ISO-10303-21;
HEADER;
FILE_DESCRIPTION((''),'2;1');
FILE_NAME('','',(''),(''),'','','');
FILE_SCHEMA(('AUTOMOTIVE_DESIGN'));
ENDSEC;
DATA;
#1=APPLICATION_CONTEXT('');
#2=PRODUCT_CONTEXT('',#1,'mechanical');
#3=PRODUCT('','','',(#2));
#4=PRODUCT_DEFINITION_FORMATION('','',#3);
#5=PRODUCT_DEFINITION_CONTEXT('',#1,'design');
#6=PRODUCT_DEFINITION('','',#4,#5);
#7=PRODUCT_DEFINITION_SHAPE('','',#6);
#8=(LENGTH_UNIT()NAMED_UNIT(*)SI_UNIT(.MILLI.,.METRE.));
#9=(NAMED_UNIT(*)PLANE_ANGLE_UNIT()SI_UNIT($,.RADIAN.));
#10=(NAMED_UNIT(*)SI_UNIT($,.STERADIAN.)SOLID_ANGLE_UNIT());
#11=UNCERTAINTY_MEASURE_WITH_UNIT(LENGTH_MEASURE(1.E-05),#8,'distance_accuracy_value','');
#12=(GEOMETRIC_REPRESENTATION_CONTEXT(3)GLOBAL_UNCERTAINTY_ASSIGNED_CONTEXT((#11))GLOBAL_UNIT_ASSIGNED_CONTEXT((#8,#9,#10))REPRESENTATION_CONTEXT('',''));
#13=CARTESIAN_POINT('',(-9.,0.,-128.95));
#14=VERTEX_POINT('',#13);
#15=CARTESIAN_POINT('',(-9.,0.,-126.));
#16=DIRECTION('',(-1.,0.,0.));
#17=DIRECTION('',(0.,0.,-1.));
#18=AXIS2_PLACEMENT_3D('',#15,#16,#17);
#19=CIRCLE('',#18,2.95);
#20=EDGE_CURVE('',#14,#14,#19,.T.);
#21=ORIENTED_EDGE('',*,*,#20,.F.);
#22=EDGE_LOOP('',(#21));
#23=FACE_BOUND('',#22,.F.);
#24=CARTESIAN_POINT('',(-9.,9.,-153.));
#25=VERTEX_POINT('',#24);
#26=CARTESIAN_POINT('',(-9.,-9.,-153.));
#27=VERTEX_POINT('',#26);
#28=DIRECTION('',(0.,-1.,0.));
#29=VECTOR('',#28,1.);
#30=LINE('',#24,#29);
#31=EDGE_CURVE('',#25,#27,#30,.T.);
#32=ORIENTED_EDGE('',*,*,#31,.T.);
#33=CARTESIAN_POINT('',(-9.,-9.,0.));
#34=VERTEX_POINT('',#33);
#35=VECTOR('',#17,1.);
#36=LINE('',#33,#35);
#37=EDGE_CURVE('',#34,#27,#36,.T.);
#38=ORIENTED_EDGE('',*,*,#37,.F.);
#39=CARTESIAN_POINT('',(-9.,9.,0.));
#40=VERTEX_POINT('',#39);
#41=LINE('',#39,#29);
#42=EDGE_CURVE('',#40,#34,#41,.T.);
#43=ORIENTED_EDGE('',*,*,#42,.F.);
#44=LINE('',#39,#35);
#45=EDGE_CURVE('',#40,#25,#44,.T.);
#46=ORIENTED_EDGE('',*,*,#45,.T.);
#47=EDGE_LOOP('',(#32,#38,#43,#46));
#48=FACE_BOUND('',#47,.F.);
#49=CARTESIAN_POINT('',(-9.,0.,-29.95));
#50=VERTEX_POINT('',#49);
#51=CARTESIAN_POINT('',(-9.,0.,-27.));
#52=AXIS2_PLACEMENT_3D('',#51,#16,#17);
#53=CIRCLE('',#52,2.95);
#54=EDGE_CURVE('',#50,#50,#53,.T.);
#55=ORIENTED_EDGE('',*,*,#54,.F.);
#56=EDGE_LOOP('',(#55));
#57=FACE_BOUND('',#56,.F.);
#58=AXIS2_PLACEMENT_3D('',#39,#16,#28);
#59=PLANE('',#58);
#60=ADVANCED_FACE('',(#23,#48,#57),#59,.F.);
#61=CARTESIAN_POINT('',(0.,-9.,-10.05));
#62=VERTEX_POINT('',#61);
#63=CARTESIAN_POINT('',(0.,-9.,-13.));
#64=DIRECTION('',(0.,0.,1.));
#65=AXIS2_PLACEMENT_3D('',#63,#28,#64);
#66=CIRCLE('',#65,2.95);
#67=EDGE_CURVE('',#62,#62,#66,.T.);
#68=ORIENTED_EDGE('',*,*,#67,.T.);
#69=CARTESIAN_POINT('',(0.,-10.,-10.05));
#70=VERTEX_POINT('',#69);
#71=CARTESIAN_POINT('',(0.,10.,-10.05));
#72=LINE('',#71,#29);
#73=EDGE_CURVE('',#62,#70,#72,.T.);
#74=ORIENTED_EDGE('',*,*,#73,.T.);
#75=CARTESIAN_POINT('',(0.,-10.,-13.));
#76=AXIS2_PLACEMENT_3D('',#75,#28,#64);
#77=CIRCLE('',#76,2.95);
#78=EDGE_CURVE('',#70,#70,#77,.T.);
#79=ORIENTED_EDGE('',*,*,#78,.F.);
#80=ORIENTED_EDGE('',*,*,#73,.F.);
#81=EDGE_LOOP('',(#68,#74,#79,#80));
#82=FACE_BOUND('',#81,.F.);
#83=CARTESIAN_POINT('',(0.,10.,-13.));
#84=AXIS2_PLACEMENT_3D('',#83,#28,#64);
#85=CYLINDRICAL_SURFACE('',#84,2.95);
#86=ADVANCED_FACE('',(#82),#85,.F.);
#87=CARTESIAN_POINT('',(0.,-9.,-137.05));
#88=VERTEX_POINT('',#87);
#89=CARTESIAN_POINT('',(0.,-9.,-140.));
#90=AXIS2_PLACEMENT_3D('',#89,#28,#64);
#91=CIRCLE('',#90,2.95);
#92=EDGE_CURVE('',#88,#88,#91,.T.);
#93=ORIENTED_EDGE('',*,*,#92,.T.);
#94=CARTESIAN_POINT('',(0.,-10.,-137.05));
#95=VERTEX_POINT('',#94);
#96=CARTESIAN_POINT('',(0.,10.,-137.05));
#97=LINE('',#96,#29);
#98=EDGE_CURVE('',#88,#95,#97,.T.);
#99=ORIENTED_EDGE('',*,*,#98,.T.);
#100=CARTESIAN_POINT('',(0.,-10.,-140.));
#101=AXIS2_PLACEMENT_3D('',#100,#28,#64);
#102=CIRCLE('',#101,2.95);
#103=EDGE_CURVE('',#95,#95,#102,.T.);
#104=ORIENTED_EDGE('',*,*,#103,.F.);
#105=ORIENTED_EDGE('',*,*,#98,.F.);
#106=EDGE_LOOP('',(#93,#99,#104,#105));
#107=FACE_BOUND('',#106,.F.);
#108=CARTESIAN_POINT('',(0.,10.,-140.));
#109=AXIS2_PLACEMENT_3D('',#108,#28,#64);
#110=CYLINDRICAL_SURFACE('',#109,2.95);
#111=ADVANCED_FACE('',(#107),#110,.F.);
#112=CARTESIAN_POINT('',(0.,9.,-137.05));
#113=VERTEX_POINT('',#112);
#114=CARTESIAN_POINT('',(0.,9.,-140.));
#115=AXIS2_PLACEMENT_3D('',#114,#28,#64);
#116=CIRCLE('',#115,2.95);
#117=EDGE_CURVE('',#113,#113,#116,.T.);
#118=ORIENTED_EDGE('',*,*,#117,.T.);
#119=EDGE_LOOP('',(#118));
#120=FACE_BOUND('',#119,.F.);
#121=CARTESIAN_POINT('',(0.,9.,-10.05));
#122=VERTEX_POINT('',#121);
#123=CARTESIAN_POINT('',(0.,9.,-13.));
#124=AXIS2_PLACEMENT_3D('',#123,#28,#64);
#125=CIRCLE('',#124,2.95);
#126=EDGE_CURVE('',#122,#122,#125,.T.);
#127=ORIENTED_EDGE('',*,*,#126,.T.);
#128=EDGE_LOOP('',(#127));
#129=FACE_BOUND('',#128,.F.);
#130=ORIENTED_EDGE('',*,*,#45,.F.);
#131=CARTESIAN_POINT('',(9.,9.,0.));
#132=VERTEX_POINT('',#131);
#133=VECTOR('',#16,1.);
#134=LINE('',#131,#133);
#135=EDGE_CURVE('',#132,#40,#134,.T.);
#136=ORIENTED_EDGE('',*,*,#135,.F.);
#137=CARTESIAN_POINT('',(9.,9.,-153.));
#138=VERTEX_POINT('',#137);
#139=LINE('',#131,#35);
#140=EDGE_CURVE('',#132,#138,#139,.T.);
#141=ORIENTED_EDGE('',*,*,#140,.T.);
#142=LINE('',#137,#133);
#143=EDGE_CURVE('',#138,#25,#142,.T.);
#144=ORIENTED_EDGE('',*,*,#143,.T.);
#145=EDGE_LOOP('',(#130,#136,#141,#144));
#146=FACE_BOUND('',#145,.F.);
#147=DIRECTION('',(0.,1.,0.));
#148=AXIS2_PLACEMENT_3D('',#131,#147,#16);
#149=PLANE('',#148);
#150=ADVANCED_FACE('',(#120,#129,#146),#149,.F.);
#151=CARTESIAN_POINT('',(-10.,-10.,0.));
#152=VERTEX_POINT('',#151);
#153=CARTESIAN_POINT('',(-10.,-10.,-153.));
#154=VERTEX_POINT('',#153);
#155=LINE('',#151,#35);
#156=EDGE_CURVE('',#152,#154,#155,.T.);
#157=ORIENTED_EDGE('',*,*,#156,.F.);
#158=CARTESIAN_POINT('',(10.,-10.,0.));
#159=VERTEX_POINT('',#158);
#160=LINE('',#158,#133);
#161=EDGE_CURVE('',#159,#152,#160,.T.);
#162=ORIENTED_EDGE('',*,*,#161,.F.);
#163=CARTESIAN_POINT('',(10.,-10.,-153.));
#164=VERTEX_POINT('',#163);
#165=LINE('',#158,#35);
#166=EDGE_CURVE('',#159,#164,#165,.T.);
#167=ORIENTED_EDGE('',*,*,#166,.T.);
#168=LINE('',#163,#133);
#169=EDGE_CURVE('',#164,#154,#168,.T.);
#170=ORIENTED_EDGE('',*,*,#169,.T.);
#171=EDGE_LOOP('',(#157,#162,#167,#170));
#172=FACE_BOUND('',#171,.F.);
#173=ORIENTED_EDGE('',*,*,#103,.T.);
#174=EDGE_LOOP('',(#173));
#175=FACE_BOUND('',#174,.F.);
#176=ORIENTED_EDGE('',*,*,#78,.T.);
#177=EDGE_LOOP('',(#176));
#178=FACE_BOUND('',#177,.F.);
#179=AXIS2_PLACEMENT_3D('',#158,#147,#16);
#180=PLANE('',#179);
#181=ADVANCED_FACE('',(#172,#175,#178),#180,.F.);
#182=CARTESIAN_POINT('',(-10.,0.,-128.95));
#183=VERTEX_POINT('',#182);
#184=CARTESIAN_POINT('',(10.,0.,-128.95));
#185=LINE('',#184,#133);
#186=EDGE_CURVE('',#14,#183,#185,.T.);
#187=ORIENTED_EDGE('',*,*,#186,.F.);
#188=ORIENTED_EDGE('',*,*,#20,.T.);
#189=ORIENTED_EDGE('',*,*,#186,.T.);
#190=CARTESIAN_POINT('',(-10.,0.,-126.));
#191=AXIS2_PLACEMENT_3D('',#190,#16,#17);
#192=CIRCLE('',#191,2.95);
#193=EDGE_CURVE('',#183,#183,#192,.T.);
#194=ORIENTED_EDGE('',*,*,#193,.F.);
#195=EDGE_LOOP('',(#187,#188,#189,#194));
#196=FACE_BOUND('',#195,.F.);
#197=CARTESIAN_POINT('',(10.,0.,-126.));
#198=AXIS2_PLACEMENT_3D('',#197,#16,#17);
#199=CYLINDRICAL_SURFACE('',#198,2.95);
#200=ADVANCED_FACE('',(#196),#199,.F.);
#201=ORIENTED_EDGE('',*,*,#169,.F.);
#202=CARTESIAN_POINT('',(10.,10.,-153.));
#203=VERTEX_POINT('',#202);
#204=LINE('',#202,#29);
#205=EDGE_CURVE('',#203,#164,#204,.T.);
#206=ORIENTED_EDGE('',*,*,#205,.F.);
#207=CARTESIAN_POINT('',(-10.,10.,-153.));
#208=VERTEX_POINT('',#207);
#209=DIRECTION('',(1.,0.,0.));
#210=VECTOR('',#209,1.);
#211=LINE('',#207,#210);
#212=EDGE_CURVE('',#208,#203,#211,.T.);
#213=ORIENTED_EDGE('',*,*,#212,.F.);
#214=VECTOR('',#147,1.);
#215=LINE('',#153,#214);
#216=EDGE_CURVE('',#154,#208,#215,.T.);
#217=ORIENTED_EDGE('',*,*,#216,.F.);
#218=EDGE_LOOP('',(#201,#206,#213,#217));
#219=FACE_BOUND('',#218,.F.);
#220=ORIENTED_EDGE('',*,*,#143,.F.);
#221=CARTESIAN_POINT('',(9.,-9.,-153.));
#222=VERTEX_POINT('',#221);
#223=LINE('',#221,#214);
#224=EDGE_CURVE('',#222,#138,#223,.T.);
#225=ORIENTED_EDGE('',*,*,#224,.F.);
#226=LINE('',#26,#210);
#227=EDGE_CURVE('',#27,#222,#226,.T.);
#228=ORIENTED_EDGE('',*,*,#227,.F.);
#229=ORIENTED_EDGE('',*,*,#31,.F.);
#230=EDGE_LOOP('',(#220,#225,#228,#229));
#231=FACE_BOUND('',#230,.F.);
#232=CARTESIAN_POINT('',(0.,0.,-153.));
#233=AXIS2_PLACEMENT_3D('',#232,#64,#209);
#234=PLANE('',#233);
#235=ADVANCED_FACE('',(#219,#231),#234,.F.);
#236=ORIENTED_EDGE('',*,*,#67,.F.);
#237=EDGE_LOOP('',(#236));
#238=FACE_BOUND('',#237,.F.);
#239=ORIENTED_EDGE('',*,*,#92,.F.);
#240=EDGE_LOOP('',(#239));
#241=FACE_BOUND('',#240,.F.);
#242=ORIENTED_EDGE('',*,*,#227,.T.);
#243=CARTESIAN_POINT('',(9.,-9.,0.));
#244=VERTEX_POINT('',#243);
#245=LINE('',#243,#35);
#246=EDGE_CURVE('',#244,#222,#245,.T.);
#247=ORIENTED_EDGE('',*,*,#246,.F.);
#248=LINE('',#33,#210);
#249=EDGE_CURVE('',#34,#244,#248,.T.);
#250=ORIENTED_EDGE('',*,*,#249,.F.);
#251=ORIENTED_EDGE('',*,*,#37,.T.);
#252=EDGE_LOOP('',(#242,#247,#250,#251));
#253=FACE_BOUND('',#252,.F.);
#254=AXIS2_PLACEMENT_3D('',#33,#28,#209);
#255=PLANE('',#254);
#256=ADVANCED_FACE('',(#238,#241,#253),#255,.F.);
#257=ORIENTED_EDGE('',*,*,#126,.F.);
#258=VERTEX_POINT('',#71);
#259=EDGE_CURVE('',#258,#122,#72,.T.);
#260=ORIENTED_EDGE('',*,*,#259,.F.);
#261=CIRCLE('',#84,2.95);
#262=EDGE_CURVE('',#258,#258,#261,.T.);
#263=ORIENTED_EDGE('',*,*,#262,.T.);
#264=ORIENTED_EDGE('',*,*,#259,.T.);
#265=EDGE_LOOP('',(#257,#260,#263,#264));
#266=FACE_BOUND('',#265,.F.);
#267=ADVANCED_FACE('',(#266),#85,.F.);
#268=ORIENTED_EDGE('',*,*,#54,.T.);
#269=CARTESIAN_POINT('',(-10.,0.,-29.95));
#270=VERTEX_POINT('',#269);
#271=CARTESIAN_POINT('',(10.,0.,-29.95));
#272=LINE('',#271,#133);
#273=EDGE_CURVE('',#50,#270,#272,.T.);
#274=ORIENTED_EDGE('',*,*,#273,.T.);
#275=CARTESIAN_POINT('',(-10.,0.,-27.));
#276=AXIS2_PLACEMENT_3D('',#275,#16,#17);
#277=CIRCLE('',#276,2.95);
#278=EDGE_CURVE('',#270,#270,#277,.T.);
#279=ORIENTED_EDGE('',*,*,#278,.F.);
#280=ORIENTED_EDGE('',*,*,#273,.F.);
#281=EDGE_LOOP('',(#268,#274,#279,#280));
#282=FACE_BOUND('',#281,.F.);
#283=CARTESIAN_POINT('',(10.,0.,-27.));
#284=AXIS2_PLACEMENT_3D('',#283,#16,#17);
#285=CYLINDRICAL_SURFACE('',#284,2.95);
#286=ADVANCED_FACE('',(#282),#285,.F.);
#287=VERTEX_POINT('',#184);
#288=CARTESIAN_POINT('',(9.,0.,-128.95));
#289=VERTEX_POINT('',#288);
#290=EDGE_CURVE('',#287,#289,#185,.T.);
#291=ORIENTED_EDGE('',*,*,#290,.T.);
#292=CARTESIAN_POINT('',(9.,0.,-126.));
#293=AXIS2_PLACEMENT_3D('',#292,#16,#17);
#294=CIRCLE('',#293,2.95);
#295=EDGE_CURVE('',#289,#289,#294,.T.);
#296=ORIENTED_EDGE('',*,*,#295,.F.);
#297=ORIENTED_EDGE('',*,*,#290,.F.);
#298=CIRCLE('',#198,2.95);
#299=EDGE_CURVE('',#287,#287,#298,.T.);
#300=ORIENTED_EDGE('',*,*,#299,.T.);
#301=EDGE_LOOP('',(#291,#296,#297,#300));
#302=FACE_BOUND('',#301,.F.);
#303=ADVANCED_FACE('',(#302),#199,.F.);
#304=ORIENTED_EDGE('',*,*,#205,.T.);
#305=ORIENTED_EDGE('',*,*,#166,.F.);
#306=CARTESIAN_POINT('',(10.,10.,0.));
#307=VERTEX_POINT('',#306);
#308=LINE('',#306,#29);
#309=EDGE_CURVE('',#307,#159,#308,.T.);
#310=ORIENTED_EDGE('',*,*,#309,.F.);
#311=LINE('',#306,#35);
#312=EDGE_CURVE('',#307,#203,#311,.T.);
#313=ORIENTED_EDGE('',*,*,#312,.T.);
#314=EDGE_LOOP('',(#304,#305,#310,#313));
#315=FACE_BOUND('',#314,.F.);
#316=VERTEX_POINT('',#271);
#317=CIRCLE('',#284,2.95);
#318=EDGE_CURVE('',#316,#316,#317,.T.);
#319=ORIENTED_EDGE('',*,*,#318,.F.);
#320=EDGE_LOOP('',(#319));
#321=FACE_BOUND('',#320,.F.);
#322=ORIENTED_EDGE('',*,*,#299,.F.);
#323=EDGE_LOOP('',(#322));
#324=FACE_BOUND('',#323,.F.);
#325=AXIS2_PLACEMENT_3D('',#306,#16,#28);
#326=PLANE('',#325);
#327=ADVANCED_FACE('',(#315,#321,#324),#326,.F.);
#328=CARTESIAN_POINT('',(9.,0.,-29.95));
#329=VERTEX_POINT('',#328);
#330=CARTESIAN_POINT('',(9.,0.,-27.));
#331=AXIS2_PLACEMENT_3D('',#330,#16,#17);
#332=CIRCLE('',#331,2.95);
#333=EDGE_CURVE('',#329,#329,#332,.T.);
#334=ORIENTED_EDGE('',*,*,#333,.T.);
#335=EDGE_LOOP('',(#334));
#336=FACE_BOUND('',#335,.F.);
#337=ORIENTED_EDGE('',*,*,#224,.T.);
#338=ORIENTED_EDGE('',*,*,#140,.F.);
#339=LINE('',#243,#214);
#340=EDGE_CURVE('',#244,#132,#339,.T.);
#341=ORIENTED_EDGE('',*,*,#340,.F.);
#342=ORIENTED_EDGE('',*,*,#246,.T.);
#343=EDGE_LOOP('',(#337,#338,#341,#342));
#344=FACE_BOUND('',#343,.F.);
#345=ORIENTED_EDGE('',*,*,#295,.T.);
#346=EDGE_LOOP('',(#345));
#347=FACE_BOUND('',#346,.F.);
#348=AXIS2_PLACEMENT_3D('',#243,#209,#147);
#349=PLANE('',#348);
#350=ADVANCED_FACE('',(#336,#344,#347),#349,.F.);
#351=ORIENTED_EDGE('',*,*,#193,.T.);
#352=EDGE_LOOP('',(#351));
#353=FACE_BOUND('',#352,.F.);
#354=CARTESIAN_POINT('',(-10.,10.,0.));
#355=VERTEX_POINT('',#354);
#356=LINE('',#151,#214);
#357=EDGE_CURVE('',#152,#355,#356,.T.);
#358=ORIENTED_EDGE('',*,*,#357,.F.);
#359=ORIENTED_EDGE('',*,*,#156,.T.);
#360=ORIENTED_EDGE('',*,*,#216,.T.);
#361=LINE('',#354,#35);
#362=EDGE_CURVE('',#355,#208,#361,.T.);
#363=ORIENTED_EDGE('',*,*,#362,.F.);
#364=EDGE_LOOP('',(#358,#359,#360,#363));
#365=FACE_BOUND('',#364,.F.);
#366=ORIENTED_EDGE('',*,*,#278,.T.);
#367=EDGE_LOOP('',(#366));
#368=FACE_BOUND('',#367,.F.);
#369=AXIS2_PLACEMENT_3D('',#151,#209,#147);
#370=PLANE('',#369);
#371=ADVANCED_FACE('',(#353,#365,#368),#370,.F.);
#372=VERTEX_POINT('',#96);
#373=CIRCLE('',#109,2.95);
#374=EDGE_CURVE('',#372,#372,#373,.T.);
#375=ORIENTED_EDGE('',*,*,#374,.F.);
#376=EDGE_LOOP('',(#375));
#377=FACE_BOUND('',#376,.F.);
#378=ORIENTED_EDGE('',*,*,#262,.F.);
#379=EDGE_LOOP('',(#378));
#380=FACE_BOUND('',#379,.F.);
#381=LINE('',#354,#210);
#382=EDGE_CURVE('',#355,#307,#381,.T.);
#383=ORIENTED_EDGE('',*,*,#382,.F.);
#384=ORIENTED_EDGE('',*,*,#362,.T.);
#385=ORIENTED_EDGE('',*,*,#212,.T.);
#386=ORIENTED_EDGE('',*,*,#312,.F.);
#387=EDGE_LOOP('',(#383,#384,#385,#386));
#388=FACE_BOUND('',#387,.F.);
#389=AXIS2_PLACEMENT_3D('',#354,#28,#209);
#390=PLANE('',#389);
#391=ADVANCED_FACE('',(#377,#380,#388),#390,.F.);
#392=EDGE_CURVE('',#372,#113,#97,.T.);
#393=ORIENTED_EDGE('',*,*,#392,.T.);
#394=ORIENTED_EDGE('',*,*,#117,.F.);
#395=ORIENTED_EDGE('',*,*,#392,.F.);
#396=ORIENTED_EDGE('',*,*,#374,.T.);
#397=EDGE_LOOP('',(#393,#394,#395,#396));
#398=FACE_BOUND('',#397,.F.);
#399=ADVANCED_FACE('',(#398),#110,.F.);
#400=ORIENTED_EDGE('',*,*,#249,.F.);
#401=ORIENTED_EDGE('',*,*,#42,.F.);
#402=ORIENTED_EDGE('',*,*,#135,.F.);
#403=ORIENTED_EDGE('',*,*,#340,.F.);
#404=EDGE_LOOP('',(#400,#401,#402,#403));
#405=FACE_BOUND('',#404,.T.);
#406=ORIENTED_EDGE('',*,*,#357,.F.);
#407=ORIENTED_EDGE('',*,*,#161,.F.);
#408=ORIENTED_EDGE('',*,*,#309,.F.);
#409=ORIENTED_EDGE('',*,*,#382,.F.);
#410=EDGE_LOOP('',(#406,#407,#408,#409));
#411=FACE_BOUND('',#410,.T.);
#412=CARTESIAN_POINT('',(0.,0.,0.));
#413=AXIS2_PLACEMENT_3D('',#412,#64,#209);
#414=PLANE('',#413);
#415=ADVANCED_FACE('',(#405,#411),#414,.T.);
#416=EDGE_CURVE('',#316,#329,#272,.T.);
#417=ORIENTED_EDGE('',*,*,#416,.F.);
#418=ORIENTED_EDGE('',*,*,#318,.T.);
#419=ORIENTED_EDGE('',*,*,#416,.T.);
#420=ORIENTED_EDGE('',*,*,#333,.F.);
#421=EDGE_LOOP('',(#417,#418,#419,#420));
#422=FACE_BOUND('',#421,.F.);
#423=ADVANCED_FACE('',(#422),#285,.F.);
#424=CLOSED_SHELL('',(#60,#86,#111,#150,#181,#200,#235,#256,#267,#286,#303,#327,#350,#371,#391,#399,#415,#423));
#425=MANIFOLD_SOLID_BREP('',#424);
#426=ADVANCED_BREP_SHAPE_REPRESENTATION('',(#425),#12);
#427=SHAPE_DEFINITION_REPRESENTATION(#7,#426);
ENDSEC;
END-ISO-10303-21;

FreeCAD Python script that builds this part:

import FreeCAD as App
import Part
import Sketcher
Q = App.Units.Quantity


def add_polygon(sketch, points):
    """Adds a closed chain of lines whose ends are joined by coincident constraints."""
    first, n = sketch.GeometryCount, len(points)
    for a, b in zip(points, points[1:] + points[:1]):
        sketch.addGeometry(Part.LineSegment(App.Vector(*a, 0), App.Vector(*b, 0)), False)
    for i in range(n):
        sketch.addConstraint(Sketcher.Constraint("Coincident", first + i, 2, first + (i + 1) % n, 1))

doc = App.newDocument("Part")
params = doc.addObject("Spreadsheet::Sheet", "Params")
for row, (alias, value) in enumerate([
    ("sketch1_width", "20 mm"),
    ("pad1_length", "153 mm"),
    ("sketch2_diameter", "5.9 mm"),
    ("hole_diameter", "5.9 mm"),
    ("sketch3_diameter", "5.9 mm"),
    ("hole2_diameter", "5.9 mm"),
], start=1):
    params.set(f"A{row}", alias)
    params.set(f"B{row}", "=" + value)
    params.setAlias(f"B{row}", alias)

body = doc.addObject("PartDesign::Body", "Body")

# Sketch on XY plane
sketch1 = body.newObject("Sketcher::SketchObject", "Sketch")
sketch1.AttachmentSupport = (doc.getObject("XY_Plane"), [""])
sketch1.MapMode = "FlatFace"
add_polygon(sketch1, [(-10, -10), (10, -10), (10, 10), (-10, 10)])  # lines 0-3
add_polygon(sketch1, [(-9, 9), (9, 9), (9, -9), (-9, -9)])  # lines 4-7
sketch1.addConstraint(Sketcher.Constraint("Horizontal", 0))
sketch1.addConstraint(Sketcher.Constraint("Vertical", 1))
sketch1.addConstraint(Sketcher.Constraint("Horizontal", 2))
sketch1.addConstraint(Sketcher.Constraint("Vertical", 3))
sketch1.addConstraint(Sketcher.Constraint("Horizontal", 4))
sketch1.addConstraint(Sketcher.Constraint("Vertical", 5))
sketch1.addConstraint(Sketcher.Constraint("Horizontal", 6))
sketch1.addConstraint(Sketcher.Constraint("Vertical", 7))
sketch1.addConstraint(Sketcher.Constraint("Symmetric", 0, 2, 2, 2, -1, 1))
sketch1.addConstraint(Sketcher.Constraint("Symmetric", 4, 2, 6, 2, -1, 1))
sketch1.addConstraint(Sketcher.Constraint("Equal", 2, 1))
sketch1.addConstraint(Sketcher.Constraint("Equal", 6, 5))
sketch1.addConstraint(Sketcher.Constraint("DistanceX", 0, 1, 0, 2, Q("20 mm")))
sketch1.addConstraint(Sketcher.Constraint("DistanceX", 4, 2, 1, 2, Q("1 mm")))
sketch1.setExpression("Constraints[20]", "Params.sketch1_width")
pad1 = body.newObject("PartDesign::Pad", "Pad")
pad1.Profile = sketch1
pad1.setExpression("Length", "Params.pad1_length")
pad1.Reversed = True

# Sketch on YZ plane
sketch2 = body.newObject("Sketcher::SketchObject", "Sketch001")
sketch2.AttachmentSupport = (doc.getObject("YZ_Plane"), [""])
sketch2.MapMode = "FlatFace"
sketch2.AttachmentOffset = App.Placement(App.Vector(0, 0, 10), App.Rotation())
sketch2.addGeometry(Part.Circle(App.Vector(0, -126, 0), App.Vector(0, 0, 1), 3), False)
sketch2.addGeometry(Part.Circle(App.Vector(0, -27, 0), App.Vector(0, 0, 1), 3), False)
sketch2.addConstraint(Sketcher.Constraint("Equal", 0, 1))
sketch2.addConstraint(Sketcher.Constraint("PointOnObject", 0, 3, -2))
sketch2.addConstraint(Sketcher.Constraint("PointOnObject", 1, 3, -2))
sketch2.addConstraint(Sketcher.Constraint("Diameter", 0, Q("5.9 mm")))
sketch2.addConstraint(Sketcher.Constraint("DistanceY", 0, 3, -1, 1, Q("126 mm")))
sketch2.addConstraint(Sketcher.Constraint("DistanceY", 1, 3, -1, 1, Q("27 mm")))
sketch2.setExpression("Constraints[3]", "Params.sketch2_diameter")
doc.recompute()
hole = body.newObject("PartDesign::Hole", "Hole")
hole.Profile = sketch2
hole.ThreadType = "None"
hole.setExpression("Diameter", "Params.hole_diameter")
hole.DepthType = "ThroughAll"

# Sketch on XZ plane
sketch3 = body.newObject("Sketcher::SketchObject", "Sketch002")
sketch3.AttachmentSupport = (doc.getObject("XZ_Plane"), [""])
sketch3.MapMode = "FlatFace"
sketch3.AttachmentOffset = App.Placement(App.Vector(0, 0, -10), App.Rotation())
sketch3.addGeometry(Part.Circle(App.Vector(0, -13, 0), App.Vector(0, 0, 1), 3), False)
sketch3.addGeometry(Part.Circle(App.Vector(0, -140, 0), App.Vector(0, 0, 1), 3), False)
sketch3.addConstraint(Sketcher.Constraint("Equal", 0, 1))
sketch3.addConstraint(Sketcher.Constraint("PointOnObject", 0, 3, -2))
sketch3.addConstraint(Sketcher.Constraint("PointOnObject", 1, 3, -2))
sketch3.addConstraint(Sketcher.Constraint("Diameter", 0, Q("5.9 mm")))
sketch3.addConstraint(Sketcher.Constraint("DistanceY", 0, 3, -1, 1, Q("13 mm")))
sketch3.addConstraint(Sketcher.Constraint("DistanceY", 1, 3, -1, 1, Q("140 mm")))
sketch3.setExpression("Constraints[3]", "Params.sketch3_diameter")
doc.recompute()
hole2 = body.newObject("PartDesign::Hole", "Hole001")
hole2.Profile = sketch3
hole2.ThreadType = "None"
hole2.setExpression("Diameter", "Params.hole2_diameter")
hole2.DepthType = "ThroughAll"
hole2.Reversed = True

doc.recompute()
